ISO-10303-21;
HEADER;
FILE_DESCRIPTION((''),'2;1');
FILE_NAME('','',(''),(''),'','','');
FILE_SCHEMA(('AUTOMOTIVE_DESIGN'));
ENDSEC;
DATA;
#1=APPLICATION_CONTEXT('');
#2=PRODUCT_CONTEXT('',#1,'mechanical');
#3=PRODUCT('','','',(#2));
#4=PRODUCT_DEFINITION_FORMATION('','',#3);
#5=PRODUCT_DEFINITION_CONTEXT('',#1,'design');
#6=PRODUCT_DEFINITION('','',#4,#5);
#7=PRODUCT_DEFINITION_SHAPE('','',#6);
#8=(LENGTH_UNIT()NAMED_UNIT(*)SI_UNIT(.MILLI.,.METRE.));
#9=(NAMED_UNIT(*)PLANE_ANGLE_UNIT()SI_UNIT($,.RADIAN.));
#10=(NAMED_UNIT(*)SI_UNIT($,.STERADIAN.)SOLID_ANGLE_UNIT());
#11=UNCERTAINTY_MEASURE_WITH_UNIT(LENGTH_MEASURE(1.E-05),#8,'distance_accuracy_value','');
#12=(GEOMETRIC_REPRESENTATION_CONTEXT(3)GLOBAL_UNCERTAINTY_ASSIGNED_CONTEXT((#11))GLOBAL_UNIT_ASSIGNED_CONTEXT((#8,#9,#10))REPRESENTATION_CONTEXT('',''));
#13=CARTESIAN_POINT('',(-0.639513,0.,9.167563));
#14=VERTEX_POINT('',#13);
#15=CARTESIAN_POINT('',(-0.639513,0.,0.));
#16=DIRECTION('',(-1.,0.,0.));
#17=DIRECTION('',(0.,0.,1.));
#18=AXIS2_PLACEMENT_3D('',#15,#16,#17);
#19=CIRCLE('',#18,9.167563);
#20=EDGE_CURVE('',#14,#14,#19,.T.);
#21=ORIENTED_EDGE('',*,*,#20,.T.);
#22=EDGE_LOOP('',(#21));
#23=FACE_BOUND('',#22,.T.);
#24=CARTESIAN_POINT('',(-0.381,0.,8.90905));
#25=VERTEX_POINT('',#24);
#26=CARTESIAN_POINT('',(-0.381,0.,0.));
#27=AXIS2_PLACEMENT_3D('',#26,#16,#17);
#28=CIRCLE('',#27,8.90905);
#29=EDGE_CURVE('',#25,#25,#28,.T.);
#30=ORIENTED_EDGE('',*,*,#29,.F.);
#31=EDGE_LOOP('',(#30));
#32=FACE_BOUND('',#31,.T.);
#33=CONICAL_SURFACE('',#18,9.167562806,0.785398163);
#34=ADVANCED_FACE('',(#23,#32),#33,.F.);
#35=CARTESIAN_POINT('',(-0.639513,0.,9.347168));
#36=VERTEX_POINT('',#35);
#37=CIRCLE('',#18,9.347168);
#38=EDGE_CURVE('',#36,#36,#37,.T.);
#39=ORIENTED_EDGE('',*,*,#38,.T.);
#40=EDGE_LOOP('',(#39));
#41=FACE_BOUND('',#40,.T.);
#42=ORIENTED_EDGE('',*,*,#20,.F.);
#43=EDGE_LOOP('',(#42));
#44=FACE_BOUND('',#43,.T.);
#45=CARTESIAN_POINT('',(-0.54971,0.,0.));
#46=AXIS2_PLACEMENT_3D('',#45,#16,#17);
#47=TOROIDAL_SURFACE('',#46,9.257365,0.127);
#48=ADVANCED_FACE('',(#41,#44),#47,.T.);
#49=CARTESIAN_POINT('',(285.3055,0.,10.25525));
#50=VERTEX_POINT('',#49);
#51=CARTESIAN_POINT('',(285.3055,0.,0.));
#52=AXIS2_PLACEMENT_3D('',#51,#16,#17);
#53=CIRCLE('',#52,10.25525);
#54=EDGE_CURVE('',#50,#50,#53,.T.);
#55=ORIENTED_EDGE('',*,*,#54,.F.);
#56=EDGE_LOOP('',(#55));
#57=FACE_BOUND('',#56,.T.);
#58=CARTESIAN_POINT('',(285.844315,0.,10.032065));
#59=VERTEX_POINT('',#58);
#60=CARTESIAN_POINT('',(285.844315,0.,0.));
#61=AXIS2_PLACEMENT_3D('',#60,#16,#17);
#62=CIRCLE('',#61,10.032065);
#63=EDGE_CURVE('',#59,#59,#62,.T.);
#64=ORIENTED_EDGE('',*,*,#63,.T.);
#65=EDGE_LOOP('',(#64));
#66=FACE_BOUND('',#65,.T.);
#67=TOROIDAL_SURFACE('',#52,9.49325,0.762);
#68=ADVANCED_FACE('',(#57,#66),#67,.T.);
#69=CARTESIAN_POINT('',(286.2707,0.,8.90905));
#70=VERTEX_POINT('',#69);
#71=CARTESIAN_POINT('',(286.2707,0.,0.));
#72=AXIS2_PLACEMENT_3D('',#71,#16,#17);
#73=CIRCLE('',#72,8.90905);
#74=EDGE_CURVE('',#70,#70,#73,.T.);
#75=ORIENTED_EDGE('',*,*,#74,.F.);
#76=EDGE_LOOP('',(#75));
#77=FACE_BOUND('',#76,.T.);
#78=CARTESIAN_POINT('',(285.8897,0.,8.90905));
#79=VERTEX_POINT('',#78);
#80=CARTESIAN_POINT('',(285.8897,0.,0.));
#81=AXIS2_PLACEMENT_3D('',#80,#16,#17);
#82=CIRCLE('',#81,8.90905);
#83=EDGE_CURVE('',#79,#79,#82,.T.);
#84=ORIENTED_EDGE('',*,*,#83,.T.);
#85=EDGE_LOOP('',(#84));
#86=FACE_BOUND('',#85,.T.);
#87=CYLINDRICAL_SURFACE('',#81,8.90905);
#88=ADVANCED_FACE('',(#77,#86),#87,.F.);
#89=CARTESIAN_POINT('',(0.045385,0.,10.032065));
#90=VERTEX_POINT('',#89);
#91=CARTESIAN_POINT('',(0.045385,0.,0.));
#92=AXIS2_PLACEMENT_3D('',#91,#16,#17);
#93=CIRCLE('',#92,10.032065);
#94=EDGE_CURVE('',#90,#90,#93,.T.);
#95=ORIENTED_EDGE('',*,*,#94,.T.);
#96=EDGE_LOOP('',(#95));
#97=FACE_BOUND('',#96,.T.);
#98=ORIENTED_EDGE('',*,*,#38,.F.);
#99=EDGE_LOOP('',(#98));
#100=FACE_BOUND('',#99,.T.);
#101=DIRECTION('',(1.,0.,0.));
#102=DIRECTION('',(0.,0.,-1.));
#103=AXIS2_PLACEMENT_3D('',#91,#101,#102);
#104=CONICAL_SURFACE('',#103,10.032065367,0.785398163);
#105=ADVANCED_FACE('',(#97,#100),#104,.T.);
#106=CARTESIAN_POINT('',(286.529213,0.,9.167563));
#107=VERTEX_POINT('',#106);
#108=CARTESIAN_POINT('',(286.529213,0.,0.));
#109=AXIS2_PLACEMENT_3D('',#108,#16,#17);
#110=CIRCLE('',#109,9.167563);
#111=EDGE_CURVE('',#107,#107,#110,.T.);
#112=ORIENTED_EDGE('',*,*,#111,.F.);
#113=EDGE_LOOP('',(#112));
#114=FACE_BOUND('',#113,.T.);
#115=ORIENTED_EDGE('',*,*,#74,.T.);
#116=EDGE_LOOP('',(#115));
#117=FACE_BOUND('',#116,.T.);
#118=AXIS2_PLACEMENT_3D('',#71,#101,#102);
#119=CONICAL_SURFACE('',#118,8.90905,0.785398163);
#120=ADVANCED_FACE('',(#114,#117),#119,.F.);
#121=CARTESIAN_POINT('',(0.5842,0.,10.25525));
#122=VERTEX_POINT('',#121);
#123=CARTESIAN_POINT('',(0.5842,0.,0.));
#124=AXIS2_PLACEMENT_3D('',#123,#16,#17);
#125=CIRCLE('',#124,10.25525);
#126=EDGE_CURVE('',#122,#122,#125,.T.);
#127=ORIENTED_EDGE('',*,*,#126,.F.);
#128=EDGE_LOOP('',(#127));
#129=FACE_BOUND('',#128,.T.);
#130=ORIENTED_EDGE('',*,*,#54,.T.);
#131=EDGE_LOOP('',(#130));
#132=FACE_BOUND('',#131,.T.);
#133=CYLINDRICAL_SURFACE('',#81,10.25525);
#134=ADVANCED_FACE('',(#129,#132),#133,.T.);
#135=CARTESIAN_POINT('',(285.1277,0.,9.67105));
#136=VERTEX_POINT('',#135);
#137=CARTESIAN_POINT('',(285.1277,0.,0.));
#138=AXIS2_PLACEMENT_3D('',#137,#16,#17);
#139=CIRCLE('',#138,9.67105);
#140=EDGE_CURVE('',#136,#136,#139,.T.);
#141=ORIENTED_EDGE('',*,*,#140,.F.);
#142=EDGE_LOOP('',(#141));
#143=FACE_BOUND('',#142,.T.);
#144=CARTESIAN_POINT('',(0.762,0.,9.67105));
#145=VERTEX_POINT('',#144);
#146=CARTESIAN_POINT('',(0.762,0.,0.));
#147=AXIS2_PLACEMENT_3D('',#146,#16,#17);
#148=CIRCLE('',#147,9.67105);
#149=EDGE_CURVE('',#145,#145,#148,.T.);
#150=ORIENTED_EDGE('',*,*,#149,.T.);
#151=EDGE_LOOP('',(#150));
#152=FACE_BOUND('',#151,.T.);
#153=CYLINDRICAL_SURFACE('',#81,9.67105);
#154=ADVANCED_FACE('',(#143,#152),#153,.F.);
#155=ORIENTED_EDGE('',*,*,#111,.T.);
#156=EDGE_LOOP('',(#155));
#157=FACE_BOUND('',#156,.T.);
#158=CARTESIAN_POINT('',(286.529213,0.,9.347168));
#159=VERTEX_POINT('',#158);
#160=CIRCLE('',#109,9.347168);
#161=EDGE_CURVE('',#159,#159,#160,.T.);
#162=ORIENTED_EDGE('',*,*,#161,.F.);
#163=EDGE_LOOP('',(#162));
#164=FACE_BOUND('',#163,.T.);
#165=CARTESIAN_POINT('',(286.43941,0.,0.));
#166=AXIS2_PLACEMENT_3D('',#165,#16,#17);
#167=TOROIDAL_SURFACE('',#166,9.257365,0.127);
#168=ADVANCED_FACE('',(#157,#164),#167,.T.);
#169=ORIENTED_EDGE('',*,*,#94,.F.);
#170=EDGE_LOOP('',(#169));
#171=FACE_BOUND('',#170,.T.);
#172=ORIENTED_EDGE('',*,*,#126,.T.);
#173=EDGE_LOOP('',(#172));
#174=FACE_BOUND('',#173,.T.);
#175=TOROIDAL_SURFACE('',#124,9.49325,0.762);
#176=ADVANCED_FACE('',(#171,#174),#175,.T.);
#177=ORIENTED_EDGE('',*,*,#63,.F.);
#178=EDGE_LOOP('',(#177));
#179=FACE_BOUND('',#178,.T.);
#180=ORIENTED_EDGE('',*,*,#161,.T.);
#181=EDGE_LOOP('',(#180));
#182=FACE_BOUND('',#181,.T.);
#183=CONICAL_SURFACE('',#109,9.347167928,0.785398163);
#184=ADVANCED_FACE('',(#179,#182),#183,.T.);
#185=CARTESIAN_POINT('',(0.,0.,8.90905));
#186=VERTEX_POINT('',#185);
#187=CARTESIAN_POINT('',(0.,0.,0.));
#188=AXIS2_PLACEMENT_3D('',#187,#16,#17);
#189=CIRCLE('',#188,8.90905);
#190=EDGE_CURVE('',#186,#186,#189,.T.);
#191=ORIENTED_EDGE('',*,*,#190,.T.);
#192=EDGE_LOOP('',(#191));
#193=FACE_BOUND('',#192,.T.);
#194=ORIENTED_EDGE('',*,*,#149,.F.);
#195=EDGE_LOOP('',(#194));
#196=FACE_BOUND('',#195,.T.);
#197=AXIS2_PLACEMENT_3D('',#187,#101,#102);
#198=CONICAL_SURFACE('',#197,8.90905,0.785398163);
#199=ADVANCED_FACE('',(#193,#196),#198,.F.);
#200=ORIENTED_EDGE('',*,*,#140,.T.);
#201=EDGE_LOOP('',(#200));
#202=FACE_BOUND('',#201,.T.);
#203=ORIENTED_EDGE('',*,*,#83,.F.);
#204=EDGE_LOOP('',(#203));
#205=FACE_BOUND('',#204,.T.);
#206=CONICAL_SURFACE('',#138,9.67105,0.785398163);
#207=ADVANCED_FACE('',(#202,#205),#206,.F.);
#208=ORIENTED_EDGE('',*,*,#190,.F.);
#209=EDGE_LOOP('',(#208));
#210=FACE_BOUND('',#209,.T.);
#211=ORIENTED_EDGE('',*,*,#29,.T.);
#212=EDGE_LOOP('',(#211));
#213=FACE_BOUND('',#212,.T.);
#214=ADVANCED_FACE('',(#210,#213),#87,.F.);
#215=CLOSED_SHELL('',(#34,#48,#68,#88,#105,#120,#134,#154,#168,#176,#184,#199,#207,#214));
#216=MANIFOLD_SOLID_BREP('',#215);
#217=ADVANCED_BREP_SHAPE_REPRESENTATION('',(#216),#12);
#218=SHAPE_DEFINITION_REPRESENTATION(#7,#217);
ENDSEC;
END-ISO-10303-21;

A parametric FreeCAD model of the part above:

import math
import FreeCAD as App
import Part
import Sketcher
Q = App.Units.Quantity

doc = App.newDocument("Part")
params = doc.addObject("Spreadsheet::Sheet", "Params")
for row, (alias, value) in enumerate([
    ("sketch1_radius", "0.03 in"),
    ("sketch1_radius2", "0.005 in"),
    ("sketch1_width", "0.015 in"),
    ("revolution_angle", "360 deg"),
], start=1):
    params.set(f"A{row}", alias)
    params.set(f"B{row}", "=" + value)
    params.setAlias(f"B{row}", alias)

body = doc.addObject("PartDesign::Body", "Body")

# Sketch on XY plane
sketch1 = doc.addObject("Sketcher::SketchObject", "Sketch")
body.addObject(sketch1)
sketch1.AttachmentSupport = (doc.XY_Plane, [""])
sketch1.MapMode = "FlatFace"
sketch1.addGeometry(Part.LineSegment(App.Vector(-0.64, 9.17, 0), App.Vector(-0.38, 8.91, 0)), False)
sketch1.addGeometry(Part.LineSegment(App.Vector(-0.38, 8.91, 0), App.Vector(0, 8.91, 0)), False)
sketch1.addGeometry(Part.LineSegment(App.Vector(0, 8.91, 0), App.Vector(0.76, 9.67, 0)), False)
sketch1.addGeometry(Part.LineSegment(App.Vector(0.76, 9.67, 0), App.Vector(285.13, 9.67, 0)), False)
sketch1.addGeometry(Part.LineSegment(App.Vector(285.13, 9.67, 0), App.Vector(285.89, 8.91, 0)), False)
sketch1.addGeometry(Part.LineSegment(App.Vector(285.89, 8.91, 0), App.Vector(286.27, 8.91, 0)), False)
sketch1.addGeometry(Part.LineSegment(App.Vector(286.27, 8.91, 0), App.Vector(286.53, 9.17, 0)), False)
sketch1.addGeometry(Part.ArcOfCircle(Part.Circle(App.Vector(286.44, 9.26, 0), App.Vector(0, 0, 1), 0.13), math.radians(-45), math.radians(45)), False)
sketch1.addGeometry(Part.LineSegment(App.Vector(286.53, 9.35, 0), App.Vector(285.84, 10.03, 0)), False)
sketch1.addGeometry(Part.ArcOfCircle(Part.Circle(App.Vector(285.31, 9.49, 0), App.Vector(0, 0, 1), 0.76), math.radians(45), math.radians(90)), False)
sketch1.addGeometry(Part.LineSegment(App.Vector(285.31, 10.26, 0), App.Vector(0.58, 10.26, 0)), False)
sketch1.addGeometry(Part.ArcOfCircle(Part.Circle(App.Vector(0.58, 9.49, 0), App.Vector(0, 0, 1), 0.76), math.radians(90), math.radians(135)), False)
sketch1.addGeometry(Part.LineSegment(App.Vector(0.05, 10.03, 0), App.Vector(-0.64, 9.35, 0)), False)
sketch1.addGeometry(Part.ArcOfCircle(Part.Circle(App.Vector(-0.55, 9.26, 0), App.Vector(0, 0, 1), 0.13), math.radians(135), math.radians(225)), False)
sketch1.addConstraint(Sketcher.Constraint("Coincident", 0, 2, 1, 1))
sketch1.addConstraint(Sketcher.Constraint("Coincident", 1, 2, 2, 1))
sketch1.addConstraint(Sketcher.Constraint("Coincident", 2, 2, 3, 1))
sketch1.addConstraint(Sketcher.Constraint("Coincident", 3, 2, 4, 1))
sketch1.addConstraint(Sketcher.Constraint("Coincident", 4, 2, 5, 1))
sketch1.addConstraint(Sketcher.Constraint("Coincident", 5, 2, 6, 1))
sketch1.addConstraint(Sketcher.Constraint("Tangent", 6, 2, 7, 1))
sketch1.addConstraint(Sketcher.Constraint("Tangent", 7, 2, 8, 1))
sketch1.addConstraint(Sketcher.Constraint("Tangent", 8, 2, 9, 1))
sketch1.addConstraint(Sketcher.Constraint("Tangent", 9, 2, 10, 1))
sketch1.addConstraint(Sketcher.Constraint("Tangent", 10, 2, 11, 1))
sketch1.addConstraint(Sketcher.Constraint("Tangent", 11, 2, 12, 1))
sketch1.addConstraint(Sketcher.Constraint("Tangent", 12, 2, 13, 1))
sketch1.addConstraint(Sketcher.Constraint("Tangent", 13, 2, 0, 1))
sketch1.addConstraint(Sketcher.Constraint("Horizontal", 1))
sketch1.addConstraint(Sketcher.Constraint("Horizontal", 3))
sketch1.addConstraint(Sketcher.Constraint("Horizontal", 5))
sketch1.addConstraint(Sketcher.Constraint("Horizontal", 10))
sketch1.addConstraint(Sketcher.Constraint("Equal", 9, 11))
sketch1.addConstraint(Sketcher.Constraint("Equal", 7, 13))
sketch1.addConstraint(Sketcher.Constraint("PointOnObject", 1, 2, -2))
sketch1.addConstraint(Sketcher.Constraint("Perpendicular", 0, 2))
sketch1.addConstraint(Sketcher.Constraint("Perpendicular", 2, 4))
sketch1.addConstraint(Sketcher.Constraint("Perpendicular", 4, 6))
sketch1.addConstraint(Sketcher.Constraint("Perpendicular", 6, 8))
sketch1.addConstraint(Sketcher.Constraint("Perpendicular", 8, 12))
sketch1.addConstraint(Sketcher.Constraint("Horizontal", 7, 3, 13, 3))
sketch1.addConstraint(Sketcher.Constraint("Horizontal", 1, 2, 4, 2))
sketch1.addConstraint(Sketcher.Constraint("Horizontal", 8, 2, 11, 2))
sketch1.addConstraint(Sketcher.Constraint("Equal", 1, 5))
sketch1.addConstraint(Sketcher.Constraint("Radius", 9, Q("0.03 in")))
sketch1.addConstraint(Sketcher.Constraint("Radius", 7, Q("0.005 in")))
sketch1.addConstraint(Sketcher.Constraint("DistanceX", 1, 1, 1, 2, Q("0.015 in")))
sketch1.addConstraint(Sketcher.Constraint("DistanceX", -1, 1, 2, 2, Q("0.03 in")))
sketch1.addConstraint(Sketcher.Constraint("DistanceX", 3, 1, 3, 2, Q("11.1955 in")))
sketch1.addConstraint(Sketcher.Constraint("DistanceX", 10, 2, 10, 1, Q("11.2095 in")))
sketch1.addConstraint(Sketcher.Constraint("DistanceY", 0, 2, 11, 3, Q("0.023 in")))
sketch1.addConstraint(Sketcher.Constraint("DistanceY", -1, 1, 9, 3, Q("9.49325 mm")))
sketch1.setExpression("Constraints[30]", "Params.sketch1_radius")
sketch1.setExpression("Constraints[31]", "Params.sketch1_radius2")
sketch1.setExpression("Constraints[32]", "Params.sketch1_width")
revolution = doc.addObject("PartDesign::Revolution", "Revolution")
body.addObject(revolution)
revolution.Profile = sketch1
revolution.ReferenceAxis = (sketch1, ["H_Axis"])
revolution.setExpression("Angle", "Params.revolution_angle")

doc.recompute()
